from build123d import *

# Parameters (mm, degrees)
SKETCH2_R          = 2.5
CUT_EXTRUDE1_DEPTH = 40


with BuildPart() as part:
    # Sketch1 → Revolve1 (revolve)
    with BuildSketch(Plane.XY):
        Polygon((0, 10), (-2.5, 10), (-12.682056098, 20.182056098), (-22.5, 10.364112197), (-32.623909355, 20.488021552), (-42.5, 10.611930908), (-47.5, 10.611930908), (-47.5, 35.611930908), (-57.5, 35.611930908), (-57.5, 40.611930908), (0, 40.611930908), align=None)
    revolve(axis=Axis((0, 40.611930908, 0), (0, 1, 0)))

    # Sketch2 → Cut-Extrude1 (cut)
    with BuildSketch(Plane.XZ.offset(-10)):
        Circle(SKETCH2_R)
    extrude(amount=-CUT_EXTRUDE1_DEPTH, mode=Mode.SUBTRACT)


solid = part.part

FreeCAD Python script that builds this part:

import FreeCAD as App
import Part
import Sketcher
Q = App.Units.Quantity


def add_polygon(sketch, points):
    """Adds a closed chain of lines whose ends are joined by coincident constraints."""
    first, n = sketch.GeometryCount, len(points)
    for a, b in zip(points, points[1:] + points[:1]):
        sketch.addGeometry(Part.LineSegment(App.Vector(*a, 0), App.Vector(*b, 0)), False)
    for i in range(n):
        sketch.addConstraint(Sketcher.Constraint("Coincident", first + i, 2, first + (i + 1) % n, 1))

doc = App.newDocument("Part")
body = doc.addObject("PartDesign::Body", "Body")

sketch1 = body.newObject("Sketcher::SketchObject", "Sketch")
sketch1.AttachmentSupport = (doc.getObject("XY_Plane"), [""])
sketch1.MapMode = "FlatFace"
add_polygon(sketch1, [(-2.5, 10), (0, 10), (0, 40.611931), (-57.5, 40.611931), (-57.5, 35.611931), (-47.5, 35.611931), (-47.5, 10.611931), (-42.5, 10.611931), (-32.623909, 20.488022), (-22.5, 10.364112), (-12.682056, 20.182056)])
sketch1.addConstraint([
    Sketcher.Constraint("Horizontal", 0),
    Sketcher.Constraint("Vertical", 1),
    Sketcher.Constraint("Horizontal", 2),
    Sketcher.Constraint("Vertical", 3),
    Sketcher.Constraint("Horizontal", 4),
    Sketcher.Constraint("Vertical", 5),
    Sketcher.Constraint("Horizontal", 6),
    Sketcher.Constraint("PointOnObject", 0, 2, -2),
    Sketcher.Constraint("Perpendicular", 7, 8),
    Sketcher.Constraint("Perpendicular", 8, 9),
    Sketcher.Constraint("Perpendicular", 9, 10),
    Sketcher.Constraint("Equal", 6, 3),
    Sketcher.Constraint("DistanceX", 4, 1, 4, 2, Q("10 mm")),
    Sketcher.Constraint("DistanceX", 6, 1, 6, 2, Q("5 mm")),
    Sketcher.Constraint("DistanceY", 5, 2, 5, 1, Q("25 mm")),
    Sketcher.Constraint("Angle", 7, Q("45 deg")),
    Sketcher.Constraint("DistanceX", 0, 1, 0, 2, Q("2.5 mm")),
    Sketcher.Constraint("DistanceX", 2, 2, 2, 1, Q("57.5 mm")),
    Sketcher.Constraint("DistanceY", -1, 1, 0, 2, Q("10 mm")),
    Sketcher.Constraint("DistanceX", 6, 2, 8, 2, Q("20 mm")),
    Sketcher.Constraint("Distance", 7, Q("13.966901 mm")),
    Sketcher.Constraint("Distance", 10, Q("14.399602 mm")),
])
revolution = body.newObject("PartDesign::Revolution", "Revolution")
revolution.Profile = sketch1
revolution.ReferenceAxis = (sketch1, ["V_Axis"])
revolution.Angle = 360

sketch2 = body.newObject("Sketcher::SketchObject", "Sketch001")
sketch2.AttachmentSupport = (doc.getObject("XZ_Plane"), [""])
sketch2.MapMode = "FlatFace"
sketch2.AttachmentOffset = App.Placement(App.Vector(0, 0, -10), App.Rotation())
sketch2.addGeometry(Part.Circle(App.Vector(0, 0, 0), App.Vector(0, 0, 1), 2.5), False)
sketch2.addConstraint([
    Sketcher.Constraint("Coincident", 0, 3, -1, 1),
    Sketcher.Constraint("Diameter", 0, Q("5 mm")),
])
pocket1 = body.newObject("PartDesign::Pocket", "Pocket")
pocket1.Profile = sketch2
pocket1.Length = 40

doc.recompute()
